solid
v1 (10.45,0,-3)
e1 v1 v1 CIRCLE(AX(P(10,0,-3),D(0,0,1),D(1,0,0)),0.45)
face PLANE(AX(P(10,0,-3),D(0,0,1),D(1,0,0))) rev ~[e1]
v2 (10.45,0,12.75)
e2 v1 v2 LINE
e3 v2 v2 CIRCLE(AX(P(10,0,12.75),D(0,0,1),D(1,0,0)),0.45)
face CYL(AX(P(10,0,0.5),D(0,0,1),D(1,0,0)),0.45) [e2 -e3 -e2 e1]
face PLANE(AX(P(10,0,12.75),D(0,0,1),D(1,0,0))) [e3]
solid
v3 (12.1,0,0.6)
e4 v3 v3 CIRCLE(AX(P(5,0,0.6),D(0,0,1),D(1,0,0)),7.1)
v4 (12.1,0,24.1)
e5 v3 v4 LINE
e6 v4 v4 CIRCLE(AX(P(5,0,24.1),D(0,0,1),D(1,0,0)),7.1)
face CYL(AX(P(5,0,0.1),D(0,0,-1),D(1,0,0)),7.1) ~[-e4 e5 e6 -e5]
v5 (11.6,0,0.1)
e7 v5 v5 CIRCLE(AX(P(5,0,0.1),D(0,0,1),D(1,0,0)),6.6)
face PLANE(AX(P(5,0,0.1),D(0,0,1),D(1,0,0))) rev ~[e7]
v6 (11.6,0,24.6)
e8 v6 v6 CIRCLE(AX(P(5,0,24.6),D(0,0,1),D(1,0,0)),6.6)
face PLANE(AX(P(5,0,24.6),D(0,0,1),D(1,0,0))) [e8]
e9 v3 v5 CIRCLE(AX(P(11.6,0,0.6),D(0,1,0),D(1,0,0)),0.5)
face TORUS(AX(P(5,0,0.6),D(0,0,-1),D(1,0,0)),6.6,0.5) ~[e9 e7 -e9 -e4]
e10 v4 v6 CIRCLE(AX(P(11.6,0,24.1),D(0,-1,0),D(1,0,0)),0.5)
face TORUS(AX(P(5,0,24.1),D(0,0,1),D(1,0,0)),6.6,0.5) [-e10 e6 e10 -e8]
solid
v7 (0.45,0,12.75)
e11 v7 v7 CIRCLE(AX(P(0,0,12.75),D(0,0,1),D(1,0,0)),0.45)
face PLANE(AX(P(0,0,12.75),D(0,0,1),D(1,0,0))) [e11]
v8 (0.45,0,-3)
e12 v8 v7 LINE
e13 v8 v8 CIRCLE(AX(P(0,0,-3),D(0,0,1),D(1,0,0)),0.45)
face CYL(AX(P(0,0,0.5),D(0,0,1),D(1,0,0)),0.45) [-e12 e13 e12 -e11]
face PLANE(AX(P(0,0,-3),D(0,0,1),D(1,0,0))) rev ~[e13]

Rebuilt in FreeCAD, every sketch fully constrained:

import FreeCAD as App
import Part
import Sketcher
from FreeCAD import Vector
Q = App.Units.Quantity


def edges_at(feature, points):
    """Names of the edges that pass closest to the given points."""
    edges = feature.Shape.Edges
    near = lambda p: min(range(len(edges)), key=lambda i: edges[i].distToShape(Part.Vertex(*p))[0])
    return sorted({f"Edge{near(p) + 1}" for p in points})

doc = App.newDocument("Part")
params = doc.addObject("Spreadsheet::Sheet", "Params")
for row, (alias, value) in enumerate([
    ("sketch1_diameter", "0.9 mm"),
    ("pad1_length", "12.25 mm"),
    ("pad1_length2", "3.5 mm"),
    ("sketch2_diameter", "14.2 mm"),
    ("pad2_length", "24.5 mm"),
    ("fillet_radius", "0.5 mm"),
], start=1):
    params.set(f"A{row}", alias)
    params.set(f"B{row}", "=" + value)
    params.setAlias(f"B{row}", alias)

body = doc.addObject("PartDesign::Body", "Body")
body.AllowCompound = True

# Sketch on XY plane
sketch1 = body.newObject("Sketcher::SketchObject", "Sketch")
sketch1.AttachmentSupport = (doc.getObject("XY_Plane"), [""])
sketch1.MapMode = "FlatFace"
sketch1.AttachmentOffset = App.Placement(Vector(0, 0, 0.5), App.Rotation())
sketch1.addGeometry([
    Part.Circle(Vector(0, 0, 0), Vector(0, 0, 1), 0.45),
    Part.Circle(Vector(10, 0, 0), Vector(0, 0, 1), 0.45),
], False)
sketch1.addConstraint([
    Sketcher.Constraint("Coincident", 0, 3, -1, 1),
    Sketcher.Constraint("Equal", 0, 1),
    Sketcher.Constraint("PointOnObject", 1, 3, -1),
    Sketcher.Constraint("Diameter", 0, Q("0.9 mm")),
    Sketcher.Constraint("DistanceX", -1, 1, 1, 3, Q("10 mm")),
])
sketch1.setExpression("Constraints[3]", "Params.sketch1_diameter")
pad1 = body.newObject("PartDesign::Pad", "Pad")
pad1.Profile = sketch1
pad1.Type = "TwoLengths"
pad1.setExpression("Length", "Params.pad1_length")
pad1.setExpression("Length2", "Params.pad1_length2")
body2 = doc.addObject("PartDesign::Body", "Body001")

# Sketch on XY plane
sketch2 = body2.newObject("Sketcher::SketchObject", "Sketch001")
sketch2.AttachmentSupport = (doc.getObject("XY_Plane001"), [""])
sketch2.MapMode = "FlatFace"
sketch2.AttachmentOffset = App.Placement(Vector(0, 0, 0.1), App.Rotation())
sketch2.addGeometry(Part.Circle(Vector(5, 0, 0), Vector(0, 0, 1), 7), False)
sketch2.addConstraint([
    Sketcher.Constraint("PointOnObject", 0, 3, -1),
    Sketcher.Constraint("Diameter", 0, Q("14.2 mm")),
    Sketcher.Constraint("DistanceX", -1, 1, 0, 3, Q("5 mm")),
])
sketch2.setExpression("Constraints[1]", "Params.sketch2_diameter")
pad2 = body2.newObject("PartDesign::Pad", "Pad001")
pad2.Profile = sketch2
pad2.setExpression("Length", "Params.pad2_length")
doc.recompute()

fillet = body2.newObject("PartDesign::Fillet", "Fillet")
fillet.Base = (pad2, edges_at(pad2, [(-2.1, 0, 0.1), (-2.1, 0, 24.6)]))
fillet.setExpression("Radius", "Params.fillet_radius")

doc.recompute()
